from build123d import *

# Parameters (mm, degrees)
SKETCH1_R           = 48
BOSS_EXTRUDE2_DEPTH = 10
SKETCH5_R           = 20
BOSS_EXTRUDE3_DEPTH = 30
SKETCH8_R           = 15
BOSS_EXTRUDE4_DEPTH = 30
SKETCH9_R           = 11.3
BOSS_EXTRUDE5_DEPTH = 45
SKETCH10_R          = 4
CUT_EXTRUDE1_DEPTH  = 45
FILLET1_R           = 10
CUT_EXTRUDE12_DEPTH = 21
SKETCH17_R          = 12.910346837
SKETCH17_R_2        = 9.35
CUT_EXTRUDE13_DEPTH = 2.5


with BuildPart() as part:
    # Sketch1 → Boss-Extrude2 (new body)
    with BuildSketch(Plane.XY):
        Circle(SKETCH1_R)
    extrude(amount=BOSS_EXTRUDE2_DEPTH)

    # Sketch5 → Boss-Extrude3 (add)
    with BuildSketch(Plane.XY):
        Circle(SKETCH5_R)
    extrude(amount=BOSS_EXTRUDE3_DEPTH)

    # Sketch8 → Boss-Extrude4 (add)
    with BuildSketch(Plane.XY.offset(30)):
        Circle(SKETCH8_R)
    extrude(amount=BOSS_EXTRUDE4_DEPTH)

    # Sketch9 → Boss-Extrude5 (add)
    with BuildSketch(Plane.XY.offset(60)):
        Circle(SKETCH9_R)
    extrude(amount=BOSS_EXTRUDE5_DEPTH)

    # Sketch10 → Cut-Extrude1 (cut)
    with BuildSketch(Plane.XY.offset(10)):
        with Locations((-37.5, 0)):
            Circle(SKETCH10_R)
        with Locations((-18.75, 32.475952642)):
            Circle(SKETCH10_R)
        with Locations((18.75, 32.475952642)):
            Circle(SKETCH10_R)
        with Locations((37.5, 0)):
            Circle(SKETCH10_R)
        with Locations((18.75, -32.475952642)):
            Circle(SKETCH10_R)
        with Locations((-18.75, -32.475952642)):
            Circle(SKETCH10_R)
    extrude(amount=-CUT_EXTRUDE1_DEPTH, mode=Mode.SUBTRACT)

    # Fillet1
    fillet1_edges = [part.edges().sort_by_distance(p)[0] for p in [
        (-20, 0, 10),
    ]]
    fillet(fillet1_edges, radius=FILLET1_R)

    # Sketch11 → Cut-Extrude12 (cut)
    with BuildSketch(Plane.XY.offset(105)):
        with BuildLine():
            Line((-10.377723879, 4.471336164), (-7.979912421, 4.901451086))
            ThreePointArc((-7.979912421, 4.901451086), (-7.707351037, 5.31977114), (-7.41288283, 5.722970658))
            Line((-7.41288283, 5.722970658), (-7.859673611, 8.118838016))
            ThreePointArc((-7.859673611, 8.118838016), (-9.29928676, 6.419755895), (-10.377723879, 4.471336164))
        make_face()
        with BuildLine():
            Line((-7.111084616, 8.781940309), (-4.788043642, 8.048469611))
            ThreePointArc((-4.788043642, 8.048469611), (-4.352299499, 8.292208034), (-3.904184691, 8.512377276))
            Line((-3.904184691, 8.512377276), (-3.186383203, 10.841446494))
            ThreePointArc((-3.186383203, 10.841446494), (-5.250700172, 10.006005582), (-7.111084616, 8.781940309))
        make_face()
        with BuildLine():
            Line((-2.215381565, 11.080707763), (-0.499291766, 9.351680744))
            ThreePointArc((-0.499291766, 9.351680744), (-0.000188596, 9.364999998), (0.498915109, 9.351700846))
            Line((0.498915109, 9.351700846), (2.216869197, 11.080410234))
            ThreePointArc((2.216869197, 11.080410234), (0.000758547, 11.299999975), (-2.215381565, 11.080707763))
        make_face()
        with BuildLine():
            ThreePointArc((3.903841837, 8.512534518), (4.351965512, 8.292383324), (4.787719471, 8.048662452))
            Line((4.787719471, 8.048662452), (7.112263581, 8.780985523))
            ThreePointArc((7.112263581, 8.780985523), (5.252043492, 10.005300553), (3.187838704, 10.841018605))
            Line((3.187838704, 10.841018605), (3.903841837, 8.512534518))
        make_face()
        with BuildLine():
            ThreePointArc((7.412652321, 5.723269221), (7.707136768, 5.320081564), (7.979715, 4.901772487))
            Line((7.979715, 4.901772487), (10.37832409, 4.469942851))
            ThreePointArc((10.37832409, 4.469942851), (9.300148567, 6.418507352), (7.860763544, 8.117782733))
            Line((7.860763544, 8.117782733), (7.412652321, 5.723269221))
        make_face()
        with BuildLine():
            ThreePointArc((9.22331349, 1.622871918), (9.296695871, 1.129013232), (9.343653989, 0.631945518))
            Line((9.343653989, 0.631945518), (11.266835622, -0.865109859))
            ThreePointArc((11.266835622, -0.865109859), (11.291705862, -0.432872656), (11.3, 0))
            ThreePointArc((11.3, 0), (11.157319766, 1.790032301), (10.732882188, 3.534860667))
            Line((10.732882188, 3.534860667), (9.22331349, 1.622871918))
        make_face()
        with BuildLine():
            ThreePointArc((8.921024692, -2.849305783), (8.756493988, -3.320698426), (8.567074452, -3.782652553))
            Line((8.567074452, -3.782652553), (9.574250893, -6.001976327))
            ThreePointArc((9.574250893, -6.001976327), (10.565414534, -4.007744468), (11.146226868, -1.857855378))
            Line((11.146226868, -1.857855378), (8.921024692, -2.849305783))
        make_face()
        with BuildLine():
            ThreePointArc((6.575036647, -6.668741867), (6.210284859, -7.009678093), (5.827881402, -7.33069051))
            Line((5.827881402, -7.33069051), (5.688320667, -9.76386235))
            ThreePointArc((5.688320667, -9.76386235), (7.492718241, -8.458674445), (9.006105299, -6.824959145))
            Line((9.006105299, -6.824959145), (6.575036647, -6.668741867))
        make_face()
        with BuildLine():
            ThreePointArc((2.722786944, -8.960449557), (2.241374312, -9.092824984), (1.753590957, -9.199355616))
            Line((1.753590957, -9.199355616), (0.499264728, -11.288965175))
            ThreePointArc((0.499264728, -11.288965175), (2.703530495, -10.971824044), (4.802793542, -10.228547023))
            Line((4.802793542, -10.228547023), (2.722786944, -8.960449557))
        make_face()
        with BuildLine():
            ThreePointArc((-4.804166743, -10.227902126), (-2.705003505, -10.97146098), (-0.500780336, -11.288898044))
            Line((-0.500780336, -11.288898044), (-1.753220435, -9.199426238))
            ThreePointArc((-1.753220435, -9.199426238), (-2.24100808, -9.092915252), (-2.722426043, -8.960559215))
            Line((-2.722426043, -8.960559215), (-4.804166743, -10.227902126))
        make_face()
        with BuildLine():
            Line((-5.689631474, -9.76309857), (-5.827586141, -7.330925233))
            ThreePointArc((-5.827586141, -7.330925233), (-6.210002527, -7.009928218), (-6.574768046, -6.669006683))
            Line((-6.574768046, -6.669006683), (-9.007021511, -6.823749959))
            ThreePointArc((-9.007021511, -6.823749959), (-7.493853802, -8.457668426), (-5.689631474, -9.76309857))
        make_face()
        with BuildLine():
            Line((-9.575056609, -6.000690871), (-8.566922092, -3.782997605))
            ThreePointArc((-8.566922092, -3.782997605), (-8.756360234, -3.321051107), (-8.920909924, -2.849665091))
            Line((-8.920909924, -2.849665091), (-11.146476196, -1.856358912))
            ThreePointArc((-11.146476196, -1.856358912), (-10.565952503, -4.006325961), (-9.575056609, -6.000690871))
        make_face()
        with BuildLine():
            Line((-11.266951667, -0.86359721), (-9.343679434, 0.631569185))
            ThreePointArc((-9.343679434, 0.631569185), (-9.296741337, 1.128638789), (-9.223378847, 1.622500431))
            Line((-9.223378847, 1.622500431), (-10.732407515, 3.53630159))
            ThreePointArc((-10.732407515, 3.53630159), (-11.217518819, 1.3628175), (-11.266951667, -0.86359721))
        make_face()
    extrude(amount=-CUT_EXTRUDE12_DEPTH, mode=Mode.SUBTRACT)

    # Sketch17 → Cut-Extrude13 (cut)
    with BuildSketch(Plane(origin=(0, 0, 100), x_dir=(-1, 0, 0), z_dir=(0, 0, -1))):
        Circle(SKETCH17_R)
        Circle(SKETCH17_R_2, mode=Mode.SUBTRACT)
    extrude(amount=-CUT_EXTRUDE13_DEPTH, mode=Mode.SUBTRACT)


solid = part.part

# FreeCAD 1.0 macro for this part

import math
import FreeCAD as App
import Part
import Sketcher

V = App.Vector
Q = App.Units.Quantity


def edges_at(feature, points):
    """Names of the edges that pass closest to the given points."""
    edges = feature.Shape.Edges
    near = lambda p: min(range(len(edges)), key=lambda i: edges[i].distToShape(Part.Vertex(*p))[0])
    return sorted({f"Edge{near(p) + 1}" for p in points})

doc = App.newDocument("Part")
params = doc.addObject("Spreadsheet::Sheet", "Params")
for row, (alias, value) in enumerate([
    ("sketch1_diameter", "96 mm"),
    ("pad1_length", "10 mm"),
    ("sketch2_diameter", "40 mm"),
    ("pad2_length", "30 mm"),
    ("sketch3_diameter", "30 mm"),
    ("pad3_length", "30 mm"),
    ("sketch4_diameter", "22.6 mm"),
    ("pad4_length", "45 mm"),
    ("sketch5_diameter", "8 mm"),
    ("pocket1_length", "45 mm"),
    ("fillet_radius", "10 mm"),
    ("sketch6_radius", "11.3 mm"),
    ("pocket2_length", "21 mm"),
    ("sketch7_diameter", "18.7 mm"),
    ("pocket3_length", "2.5 mm"),
], start=1):
    params.set(f"A{row}", alias)
    params.set(f"B{row}", "=" + value)
    params.setAlias(f"B{row}", alias)

body = doc.addObject("PartDesign::Body", "Body")

sketch1 = doc.addObject("Sketcher::SketchObject", "Sketch")
body.addObject(sketch1)
sketch1.AttachmentSupport = (doc.XY_Plane, [""])
sketch1.MapMode = "FlatFace"
sketch1.addGeometry(Part.Circle(V(0, 0, 0), V(0, 0, 1), 48), False)
sketch1.addConstraint([
    Sketcher.Constraint("Coincident", 0, 3, -1, 1),
    Sketcher.Constraint("Diameter", 0, Q("96 mm")),
])
sketch1.setExpression("Constraints[1]", "Params.sketch1_diameter")
pad1 = doc.addObject("PartDesign::Pad", "Pad")
body.addObject(pad1)
pad1.Profile = sketch1
pad1.setExpression("Length", "Params.pad1_length")

sketch2 = doc.addObject("Sketcher::SketchObject", "Sketch001")
body.addObject(sketch2)
sketch2.AttachmentSupport = (doc.XY_Plane, [""])
sketch2.MapMode = "FlatFace"
sketch2.addGeometry(Part.Circle(V(0, 0, 0), V(0, 0, 1), 20), False)
sketch2.addConstraint([
    Sketcher.Constraint("Coincident", 0, 3, -1, 1),
    Sketcher.Constraint("Diameter", 0, Q("40 mm")),
])
sketch2.setExpression("Constraints[1]", "Params.sketch2_diameter")
pad2 = doc.addObject("PartDesign::Pad", "Pad001")
body.addObject(pad2)
pad2.Profile = sketch2
pad2.setExpression("Length", "Params.pad2_length")

sketch3 = doc.addObject("Sketcher::SketchObject", "Sketch002")
body.addObject(sketch3)
sketch3.AttachmentSupport = (doc.XY_Plane, [""])
sketch3.MapMode = "FlatFace"
sketch3.AttachmentOffset = App.Placement(V(0, 0, 30), App.Rotation())
sketch3.addGeometry(Part.Circle(V(0, 0, 0), V(0, 0, 1), 15), False)
sketch3.addConstraint([
    Sketcher.Constraint("Coincident", 0, 3, -1, 1),
    Sketcher.Constraint("Diameter", 0, Q("30 mm")),
])
sketch3.setExpression("Constraints[1]", "Params.sketch3_diameter")
pad3 = doc.addObject("PartDesign::Pad", "Pad002")
body.addObject(pad3)
pad3.Profile = sketch3
pad3.setExpression("Length", "Params.pad3_length")

sketch4 = doc.addObject("Sketcher::SketchObject", "Sketch003")
body.addObject(sketch4)
sketch4.AttachmentSupport = (doc.XY_Plane, [""])
sketch4.MapMode = "FlatFace"
sketch4.AttachmentOffset = App.Placement(V(0, 0, 60), App.Rotation())
sketch4.addGeometry(Part.Circle(V(0, 0, 0), V(0, 0, 1), 11), False)
sketch4.addConstraint([
    Sketcher.Constraint("Coincident", 0, 3, -1, 1),
    Sketcher.Constraint("Diameter", 0, Q("22.6 mm")),
])
sketch4.setExpression("Constraints[1]", "Params.sketch4_diameter")
pad4 = doc.addObject("PartDesign::Pad", "Pad003")
body.addObject(pad4)
pad4.Profile = sketch4
pad4.setExpression("Length", "Params.pad4_length")

sketch5 = doc.addObject("Sketcher::SketchObject", "Sketch004")
body.addObject(sketch5)
sketch5.AttachmentSupport = (doc.XY_Plane, [""])
sketch5.MapMode = "FlatFace"
sketch5.AttachmentOffset = App.Placement(V(0, 0, 10), App.Rotation())
sketch5.addGeometry([
    Part.Circle(V(-37.5, 0, 0), V(0, 0, 1), 4),
    Part.Circle(V(-18.8, 32.5, 0), V(0, 0, 1), 4),
    Part.Circle(V(18.8, 32.5, 0), V(0, 0, 1), 4),
    Part.Circle(V(37.5, 0, 0), V(0, 0, 1), 4),
    Part.Circle(V(18.8, -32.5, 0), V(0, 0, 1), 4),
    Part.Circle(V(-18.8, -32.5, 0), V(0, 0, 1), 4),
], False)
sketch5.addConstraint([
    Sketcher.Constraint("Equal", 0, 1),
    Sketcher.Constraint("Equal", 1, 2),
    Sketcher.Constraint("Equal", 2, 3),
    Sketcher.Constraint("Equal", 3, 4),
    Sketcher.Constraint("Equal", 4, 5),
    Sketcher.Constraint("Symmetric", 0, 3, 3, 3, -1, 1),
    Sketcher.Constraint("Symmetric", 1, 3, 4, 3, -1, 1),
    Sketcher.Constraint("Symmetric", 2, 3, 5, 3, -1, 1),
    Sketcher.Constraint("Symmetric", 1, 3, 2, 3, -2),
    Sketcher.Constraint("PointOnObject", 0, 3, -1),
    Sketcher.Constraint("Diameter", 0, Q("8 mm")),
    Sketcher.Constraint("DistanceX", 0, 3, 3, 3, Q("75 mm")),
    Sketcher.Constraint("DistanceX", 1, 3, 2, 3, Q("37.5 mm")),
    Sketcher.Constraint("DistanceY", -1, 1, 1, 3, Q("32.475953 mm")),
])
sketch5.setExpression("Constraints[10]", "Params.sketch5_diameter")
pocket1 = doc.addObject("PartDesign::Pocket", "Pocket")
body.addObject(pocket1)
pocket1.Profile = sketch5
pocket1.setExpression("Length", "Params.pocket1_length")
doc.recompute()

fillet = doc.addObject("PartDesign::Fillet", "Fillet")
body.addObject(fillet)
fillet.Base = (pocket1, edges_at(pocket1, [(-20, 0, 10)]))
fillet.setExpression("Radius", "Params.fillet_radius")

sketch6 = doc.addObject("Sketcher::SketchObject", "Sketch005")
body.addObject(sketch6)
sketch6.AttachmentSupport = (doc.XY_Plane, [""])
sketch6.MapMode = "FlatFace"
sketch6.AttachmentOffset = App.Placement(V(0, 0, 105), App.Rotation())
sketch6.addGeometry([
    Part.LineSegment(V(-10.4, 4.5, 0), V(-8, 4.9, 0)),
    Part.ArcOfCircle(Part.Circle(V(0, 0, 0), V(0, 0, 1), 9.4), math.radians(142.33), math.radians(148.44)),
    Part.LineSegment(V(-7.4, 5.7, 0), V(-7.9, 8.1, 0)),
    Part.ArcOfCircle(Part.Circle(V(0, 0, 0), V(0, 0, 1), 11.3), math.radians(134), math.radians(157)),
    Part.LineSegment(V(-7.1, 8.8, 0), V(-4.8, 8, 0)),
    Part.ArcOfCircle(Part.Circle(V(0, 0, 0), V(0, 0, 1), 9.4), math.radians(114.64), math.radians(120.75)),
    Part.LineSegment(V(-3.9, 8.5, 0), V(-3.2, 10.8, 0)),
    Part.ArcOfCircle(Part.Circle(V(0, 0, 0), V(0, 0, 1), 11.3), math.radians(106), math.radians(129)),
    Part.LineSegment(V(-2.2, 11.1, 0), V(-0.5, 9.4, 0)),
    Part.ArcOfCircle(Part.Circle(V(0, 0, 0), V(0, 0, 1), 9.4), math.radians(86.95), math.radians(93.06)),
    Part.LineSegment(V(0.5, 9.4, 0), V(2.2, 11.1, 0)),
    Part.ArcOfCircle(Part.Circle(V(0, 0, 0), V(0, 0, 1), 11.3), math.radians(79), math.radians(101)),
    Part.ArcOfCircle(Part.Circle(V(0, 0, 0), V(0, 0, 1), 9.4), math.radians(59.25), math.radians(65.36)),
    Part.LineSegment(V(4.8, 8, 0), V(7.1, 8.8, 0)),
    Part.ArcOfCircle(Part.Circle(V(0, 0, 0), V(0, 0, 1), 11.3), math.radians(51), math.radians(74)),
    Part.LineSegment(V(3.2, 10.8, 0), V(3.9, 8.5, 0)),
    Part.ArcOfCircle(Part.Circle(V(0, 0, 0), V(0, 0, 1), 9.4), math.radians(31.56), math.radians(37.67)),
    Part.LineSegment(V(8, 4.9, 0), V(10.4, 4.5, 0)),
    Part.ArcOfCircle(Part.Circle(V(0, 0, 0), V(0, 0, 1), 11.3), math.radians(23), math.radians(46)),
    Part.LineSegment(V(7.9, 8.1, 0), V(7.4, 5.7, 0)),
    Part.ArcOfCircle(Part.Circle(V(0, 0, 0), V(0, 0, 1), 9.4), math.radians(3.87), math.radians(9.98)),
    Part.LineSegment(V(9.3, 0.6, 0), V(11.3, -0.9, 0)),
    Part.ArcOfCircle(Part.Circle(V(0, 0, 0), V(0, 0, 1), 11.3), math.radians(-4.39), math.radians(0)),
    Part.ArcOfCircle(Part.Circle(V(0, 0, 0), V(0, 0, 1), 11.3), math.radians(0), math.radians(18.23)),
    Part.LineSegment(V(10.7, 3.5, 0), V(9.2, 1.6, 0)),
    Part.ArcOfCircle(Part.Circle(V(0, 0, 0), V(0, 0, 1), 9.4), math.radians(-23.82), math.radians(-17.71)),
    Part.LineSegment(V(8.6, -3.8, 0), V(9.6, -6, 0)),
    Part.ArcOfCircle(Part.Circle(V(0, 0, 0), V(0, 0, 1), 11.3), math.radians(-32), math.radians(-9)),
    Part.LineSegment(V(11.1, -1.9, 0), V(8.9, -2.8, 0)),
    Part.ArcOfCircle(Part.Circle(V(0, 0, 0), V(0, 0, 1), 9.4), math.radians(-51.52), math.radians(-45.41)),
    Part.LineSegment(V(5.8, -7.3, 0), V(5.7, -9.8, 0)),
    Part.ArcOfCircle(Part.Circle(V(0, 0, 0), V(0, 0, 1), 11.3), math.radians(-60), math.radians(-37)),
    Part.LineSegment(V(9, -6.8, 0), V(6.6, -6.7, 0)),
    Part.ArcOfCircle(Part.Circle(V(0, 0, 0), V(0, 0, 1), 9.4), math.radians(-79.21), math.radians(-73.1)),
    Part.LineSegment(V(1.8, -9.2, 0), V(0.5, -11.3, 0)),
    Part.ArcOfCircle(Part.Circle(V(0, 0, 0), V(0, 0, 1), 11.3), math.radians(-87), math.radians(-65)),
    Part.LineSegment(V(4.8, -10.2, 0), V(2.7, -9, 0)),
    Part.ArcOfCircle(Part.Circle(V(0, 0, 0), V(0, 0, 1), 11.3), math.radians(-115), math.radians(-93)),
    Part.LineSegment(V(-0.5, -11.3, 0), V(-1.8, -9.2, 0)),
    Part.ArcOfCircle(Part.Circle(V(0, 0, 0), V(0, 0, 1), 9.4), math.radians(-106.9), math.radians(-100.79)),
    Part.LineSegment(V(-2.7, -9, 0), V(-4.8, -10.2, 0)),
    Part.LineSegment(V(-5.7, -9.8, 0), V(-5.8, -7.3, 0)),
    Part.ArcOfCircle(Part.Circle(V(0, 0, 0), V(0, 0, 1), 9.4), math.radians(-134.59), math.radians(-128.48)),
    Part.LineSegment(V(-6.6, -6.7, 0), V(-9, -6.8, 0)),
    Part.ArcOfCircle(Part.Circle(V(0, 0, 0), V(0, 0, 1), 11.3), math.radians(-143), math.radians(-120)),
    Part.LineSegment(V(-9.6, -6, 0), V(-8.6, -3.8, 0)),
    Part.ArcOfCircle(Part.Circle(V(0, 0, 0), V(0, 0, 1), 9.4), math.radians(-162.28), math.radians(-156.17)),
    Part.LineSegment(V(-8.9, -2.8, 0), V(-11.1, -1.9, 0)),
    Part.ArcOfCircle(Part.Circle(V(0, 0, 0), V(0, 0, 1), 11.3), math.radians(-171), math.radians(-148)),
    Part.LineSegment(V(-11.3, -0.9, 0), V(-9.3, 0.6, 0)),
    Part.ArcOfCircle(Part.Circle(V(0, 0, 0), V(0, 0, 1), 9.4), math.radians(170.02), math.radians(176.13)),
    Part.LineSegment(V(-9.2, 1.6, 0), V(-10.7, 3.5, 0)),
    Part.ArcOfCircle(Part.Circle(V(0, 0, 0), V(0, 0, 1), 11.3), math.radians(162), math.radians(184)),
], False)
sketch6.addConstraint([
    Sketcher.Constraint("Coincident", 0, 2, 1, 2),
    Sketcher.Constraint("Coincident", 1, 1, 2, 1),
    Sketcher.Constraint("Coincident", 2, 2, 3, 1),
    Sketcher.Constraint("Coincident", 3, 2, 0, 1),
    Sketcher.Constraint("Coincident", 4, 2, 5, 2),
    Sketcher.Constraint("Coincident", 5, 1, 6, 1),
    Sketcher.Constraint("Coincident", 6, 2, 7, 1),
    Sketcher.Constraint("Coincident", 7, 2, 4, 1),
    Sketcher.Constraint("Coincident", 8, 2, 9, 2),
    Sketcher.Constraint("Coincident", 9, 1, 10, 1),
    Sketcher.Constraint("Coincident", 10, 2, 11, 1),
    Sketcher.Constraint("Coincident", 11, 2, 8, 1),
    Sketcher.Constraint("Coincident", 12, 1, 13, 1),
    Sketcher.Constraint("Coincident", 13, 2, 14, 1),
    Sketcher.Constraint("Coincident", 14, 2, 15, 1),
    Sketcher.Constraint("Coincident", 15, 2, 12, 2),
    Sketcher.Constraint("Coincident", 16, 1, 17, 1),
    Sketcher.Constraint("Coincident", 17, 2, 18, 1),
    Sketcher.Constraint("Coincident", 18, 2, 19, 1),
    Sketcher.Constraint("Coincident", 19, 2, 16, 2),
    Sketcher.Constraint("Coincident", 20, 1, 21, 1),
    Sketcher.Constraint("Coincident", 21, 2, 22, 1),
    Sketcher.Constraint("Tangent", 22, 2, 23, 1),
    Sketcher.Constraint("Coincident", 23, 2, 24, 1),
    Sketcher.Constraint("Coincident", 24, 2, 20, 2),
    Sketcher.Constraint("Coincident", 25, 1, 26, 1),
    Sketcher.Constraint("Coincident", 26, 2, 27, 1),
    Sketcher.Constraint("Coincident", 27, 2, 28, 1),
    Sketcher.Constraint("Coincident", 28, 2, 25, 2),
    Sketcher.Constraint("Coincident", 29, 1, 30, 1),
    Sketcher.Constraint("Coincident", 30, 2, 31, 1),
    Sketcher.Constraint("Coincident", 31, 2, 32, 1),
    Sketcher.Constraint("Coincident", 32, 2, 29, 2),
    Sketcher.Constraint("Coincident", 33, 1, 34, 1),
    Sketcher.Constraint("Coincident", 34, 2, 35, 1),
    Sketcher.Constraint("Coincident", 35, 2, 36, 1),
    Sketcher.Constraint("Coincident", 36, 2, 33, 2),
    Sketcher.Constraint("Coincident", 37, 2, 38, 1),
    Sketcher.Constraint("Coincident", 38, 2, 39, 2),
    Sketcher.Constraint("Coincident", 39, 1, 40, 1),
    Sketcher.Constraint("Coincident", 40, 2, 37, 1),
    Sketcher.Constraint("Coincident", 41, 2, 42, 2),
    Sketcher.Constraint("Coincident", 42, 1, 43, 1),
    Sketcher.Constraint("Coincident", 43, 2, 44, 1),
    Sketcher.Constraint("Coincident", 44, 2, 41, 1),
    Sketcher.Constraint("Coincident", 45, 2, 46, 2),
    Sketcher.Constraint("Coincident", 46, 1, 47, 1),
    Sketcher.Constraint("Coincident", 47, 2, 48, 1),
    Sketcher.Constraint("Coincident", 48, 2, 45, 1),
    Sketcher.Constraint("Coincident", 49, 2, 50, 2),
    Sketcher.Constraint("Coincident", 50, 1, 51, 1),
    Sketcher.Constraint("Coincident", 51, 2, 52, 1),
    Sketcher.Constraint("Coincident", 52, 2, 49, 1),
    Sketcher.Constraint("Coincident", 1, 3, -1, 1),
    Sketcher.Constraint("Coincident", 3, 3, -1, 1),
    Sketcher.Constraint("Coincident", 5, 3, -1, 1),
    Sketcher.Constraint("Coincident", 7, 3, -1, 1),
    Sketcher.Constraint("Coincident", 9, 3, -1, 1),
    Sketcher.Constraint("Coincident", 11, 3, -1, 1),
    Sketcher.Constraint("Coincident", 12, 3, -1, 1),
    Sketcher.Constraint("Coincident", 14, 3, -1, 1),
    Sketcher.Constraint("Coincident", 16, 3, -1, 1),
    Sketcher.Constraint("Coincident", 18, 3, -1, 1),
    Sketcher.Constraint("Coincident", 20, 3, -1, 1),
    Sketcher.Constraint("Coincident", 22, 3, -1, 1),
    Sketcher.Constraint("Coincident", 25, 3, -1, 1),
    Sketcher.Constraint("Coincident", 27, 3, -1, 1),
    Sketcher.Constraint("Coincident", 29, 3, -1, 1),
    Sketcher.Constraint("Coincident", 31, 3, -1, 1),
    Sketcher.Constraint("Coincident", 33, 3, -1, 1),
    Sketcher.Constraint("Coincident", 35, 3, -1, 1),
    Sketcher.Constraint("Coincident", 37, 3, -1, 1),
    Sketcher.Constraint("Coincident", 39, 3, -1, 1),
    Sketcher.Constraint("Coincident", 42, 3, -1, 1),
    Sketcher.Constraint("Coincident", 44, 3, -1, 1),
    Sketcher.Constraint("Coincident", 46, 3, -1, 1),
    Sketcher.Constraint("Coincident", 48, 3, -1, 1),
    Sketcher.Constraint("Coincident", 50, 3, -1, 1),
    Sketcher.Constraint("Coincident", 52, 3, -1, 1),
    Sketcher.Constraint("Equal", 1, 5),
    Sketcher.Constraint("Equal", 3, 7),
    Sketcher.Constraint("Equal", 5, 9),
    Sketcher.Constraint("Equal", 7, 11),
    Sketcher.Constraint("Equal", 9, 12),
    Sketcher.Constraint("Equal", 11, 14),
    Sketcher.Constraint("Equal", 12, 16),
    Sketcher.Constraint("Equal", 14, 18),
    Sketcher.Constraint("Equal", 16, 20),
    Sketcher.Constraint("Equal", 18, 22),
    Sketcher.Constraint("Equal", 22, 23),
    Sketcher.Constraint("Equal", 20, 25),
    Sketcher.Constraint("Equal", 23, 27),
    Sketcher.Constraint("Equal", 25, 29),
    Sketcher.Constraint("Equal", 27, 31),
    Sketcher.Constraint("Equal", 29, 33),
    Sketcher.Constraint("Equal", 31, 35),
    Sketcher.Constraint("Equal", 35, 37),
    Sketcher.Constraint("Equal", 33, 39),
    Sketcher.Constraint("Equal", 39, 42),
    Sketcher.Constraint("Equal", 37, 44),
    Sketcher.Constraint("Equal", 42, 46),
    Sketcher.Constraint("Equal", 44, 48),
    Sketcher.Constraint("Equal", 46, 50),
    Sketcher.Constraint("Equal", 48, 52),
    Sketcher.Constraint("PointOnObject", 22, 2, -1),
    Sketcher.Constraint("Equal", 0, 4),
    Sketcher.Constraint("Equal", 2, 6),
    Sketcher.Constraint("Equal", 4, 8),
    Sketcher.Constraint("Equal", 6, 10),
    Sketcher.Constraint("Equal", 10, 13),
    Sketcher.Constraint("Equal", 8, 15),
    Sketcher.Constraint("Equal", 13, 17),
    Sketcher.Constraint("Equal", 15, 19),
    Sketcher.Constraint("Equal", 17, 21),
    Sketcher.Constraint("Equal", 19, 24),
    Sketcher.Constraint("Equal", 21, 26),
    Sketcher.Constraint("Equal", 24, 28),
    Sketcher.Constraint("Equal", 26, 30),
    Sketcher.Constraint("Equal", 28, 32),
    Sketcher.Constraint("Equal", 30, 34),
    Sketcher.Constraint("Equal", 32, 36),
    Sketcher.Constraint("Equal", 36, 38),
    Sketcher.Constraint("Equal", 34, 40),
    Sketcher.Constraint("Equal", 38, 41),
    Sketcher.Constraint("Equal", 40, 43),
    Sketcher.Constraint("Equal", 41, 45),
    Sketcher.Constraint("Equal", 43, 47),
    Sketcher.Constraint("Equal", 45, 49),
    Sketcher.Constraint("Equal", 47, 51),
    Sketcher.Constraint("Radius", 3, Q("11.3 mm")),
    Sketcher.Constraint("Radius", 1, Q("9.365 mm")),
    Sketcher.Constraint("DistanceY", -1, 1, 9, 1, Q("9.351701 mm")),
    Sketcher.Constraint("DistanceY", 37, 2, -1, 1, Q("11.288898 mm")),
    Sketcher.Constraint("DistanceY", 44, 2, -1, 1, Q("9.763099 mm")),
    Sketcher.Constraint("DistanceY", -1, 1, 50, 1, Q("1.6225 mm")),
    Sketcher.Constraint("DistanceY", -1, 1, 51, 2, Q("3.536302 mm")),
    Sketcher.Constraint("DistanceY", -1, 1, 0, 2, Q("4.901451 mm")),
    Sketcher.Constraint("DistanceY", -1, 1, 1, 1, Q("5.722971 mm")),
    Sketcher.Constraint("DistanceY", -1, 1, 4, 2, Q("8.04847 mm")),
    Sketcher.Constraint("DistanceY", -1, 1, 7, 2, Q("8.78194 mm")),
    Sketcher.Constraint("DistanceX", 8, 2, -1, 1, Q("0.499292 mm")),
    Sketcher.Constraint("DistanceX", -1, 1, 12, 1, Q("4.787719 mm")),
    Sketcher.Constraint("DistanceX", -1, 1, 14, 2, Q("3.187839 mm")),
    Sketcher.Constraint("DistanceY", -1, 1, 19, 2, Q("5.723269 mm")),
    Sketcher.Constraint("DistanceY", 21, 2, -1, 1, Q("0.86511 mm")),
    Sketcher.Constraint("DistanceY", -1, 1, 23, 2, Q("3.534861 mm")),
    Sketcher.Constraint("DistanceX", -1, 1, 26, 2, Q("9.574251 mm")),
    Sketcher.Constraint("DistanceX", -1, 1, 29, 1, Q("5.827881 mm")),
    Sketcher.Constraint("DistanceY", 31, 2, -1, 1, Q("6.824959 mm")),
    Sketcher.Constraint("DistanceX", -1, 1, 33, 1, Q("1.753591 mm")),
    Sketcher.Constraint("DistanceY", 36, 2, -1, 1, Q("8.96045 mm")),
    Sketcher.Constraint("DistanceY", 39, 1, -1, 1, Q("8.960559 mm")),
    Sketcher.Constraint("DistanceX", 42, 1, -1, 1, Q("6.574768 mm")),
    Sketcher.Constraint("DistanceX", 46, 1, -1, 1, Q("8.92091 mm")),
    Sketcher.Constraint("DistanceY", 48, 2, -1, 1, Q("6.000691 mm")),
    Sketcher.Constraint("DistanceX", 49, 2, -1, 1, Q("9.343679 mm")),
    Sketcher.Constraint("DistanceX", 5, 1, -1, 1, Q("3.904185 mm")),
    Sketcher.Constraint("DistanceX", -1, 1, 16, 1, Q("7.979715 mm")),
    Sketcher.Constraint("DistanceX", -1, 1, 27, 2, Q("11.146227 mm")),
])
sketch6.setExpression("Constraints[129]", "Params.sketch6_radius")
pocket2 = doc.addObject("PartDesign::Pocket", "Pocket001")
body.addObject(pocket2)
pocket2.Profile = sketch6
pocket2.setExpression("Length", "Params.pocket2_length")

sketch7 = doc.addObject("Sketcher::SketchObject", "Sketch006")
body.addObject(sketch7)
sketch7.AttachmentSupport = (doc.XY_Plane, [""])
sketch7.MapMode = "FlatFace"
sketch7.AttachmentOffset = App.Placement(V(0, 0, 100), App.Rotation())
sketch7.addGeometry([
    Part.Circle(V(0, 0, 0), V(0, 0, 1), 13),
    Part.Circle(V(0, 0, 0), V(0, 0, 1), 9),
], False)
sketch7.addConstraint([
    Sketcher.Constraint("Coincident", 0, 3, -1, 1),
    Sketcher.Constraint("Coincident", 1, 3, -1, 1),
    Sketcher.Constraint("Diameter", 1, Q("18.7 mm")),
    Sketcher.Constraint("Diameter", 0, Q("25.820694 mm")),
])
sketch7.setExpression("Constraints[2]", "Params.sketch7_diameter")
pocket3 = doc.addObject("PartDesign::Pocket", "Pocket002")
body.addObject(pocket3)
pocket3.Profile = sketch7
pocket3.setExpression("Length", "Params.pocket3_length")
pocket3.Reversed = True

doc.recompute()
